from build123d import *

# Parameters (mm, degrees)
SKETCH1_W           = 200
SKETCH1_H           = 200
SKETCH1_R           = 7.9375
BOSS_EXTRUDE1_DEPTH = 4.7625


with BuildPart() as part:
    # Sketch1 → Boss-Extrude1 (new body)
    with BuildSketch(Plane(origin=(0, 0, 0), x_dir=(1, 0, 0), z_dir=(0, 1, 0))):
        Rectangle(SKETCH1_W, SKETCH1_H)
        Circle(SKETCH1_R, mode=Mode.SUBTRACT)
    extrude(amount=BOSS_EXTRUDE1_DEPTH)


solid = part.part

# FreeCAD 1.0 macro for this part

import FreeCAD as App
import Part
import Sketcher
Q = App.Units.Quantity

doc = App.newDocument("Part")
params = doc.addObject("Spreadsheet::Sheet", "Params")
for row, (alias, value) in enumerate([
    ("sketch1_diameter", "0.625 in"),
    ("pad1_length", "0.1875 in"),
], start=1):
    params.set(f"A{row}", alias)
    params.set(f"B{row}", "=" + value)
    params.setAlias(f"B{row}", alias)

body = doc.addObject("PartDesign::Body", "Body")

sketch1 = doc.addObject("Sketcher::SketchObject", "Sketch")
body.addObject(sketch1)
sketch1.AttachmentSupport = (doc.XZ_Plane, [""])
sketch1.MapMode = "FlatFace"
sketch1.addGeometry(Part.LineSegment(App.Vector(-100, -100, 0), App.Vector(-100, 100, 0)), False)
sketch1.addGeometry(Part.LineSegment(App.Vector(-100, 100, 0), App.Vector(100, 100, 0)), False)
sketch1.addGeometry(Part.LineSegment(App.Vector(100, 100, 0), App.Vector(100, -100, 0)), False)
sketch1.addGeometry(Part.LineSegment(App.Vector(100, -100, 0), App.Vector(-100, -100, 0)), False)
sketch1.addGeometry(Part.Circle(App.Vector(0, 0, 0), App.Vector(0, 0, 1), 8), False)
sketch1.addConstraint(Sketcher.Constraint("Coincident", 0, 2, 1, 1))
sketch1.addConstraint(Sketcher.Constraint("Coincident", 1, 2, 2, 1))
sketch1.addConstraint(Sketcher.Constraint("Coincident", 2, 2, 3, 1))
sketch1.addConstraint(Sketcher.Constraint("Coincident", 3, 2, 0, 1))
sketch1.addConstraint(Sketcher.Constraint("Vertical", 0))
sketch1.addConstraint(Sketcher.Constraint("Horizontal", 1))
sketch1.addConstraint(Sketcher.Constraint("Vertical", 2))
sketch1.addConstraint(Sketcher.Constraint("Horizontal", 3))
sketch1.addConstraint(Sketcher.Constraint("Coincident", 4, 3, -1, 1))
sketch1.addConstraint(Sketcher.Constraint("Symmetric", 0, 2, 2, 2, -1, 1))
sketch1.addConstraint(Sketcher.Constraint("Equal", 3, 0))
sketch1.addConstraint(Sketcher.Constraint("Diameter", 4, Q("0.625 in")))
sketch1.addConstraint(Sketcher.Constraint("DistanceX", 1, 1, 1, 2, Q("200 mm")))
sketch1.setExpression("Constraints[11]", "Params.sketch1_diameter")
pad1 = doc.addObject("PartDesign::Pad", "Pad")
body.addObject(pad1)
pad1.Profile = sketch1
pad1.setExpression("Length", "Params.pad1_length")
pad1.Reversed = True

doc.recompute()
